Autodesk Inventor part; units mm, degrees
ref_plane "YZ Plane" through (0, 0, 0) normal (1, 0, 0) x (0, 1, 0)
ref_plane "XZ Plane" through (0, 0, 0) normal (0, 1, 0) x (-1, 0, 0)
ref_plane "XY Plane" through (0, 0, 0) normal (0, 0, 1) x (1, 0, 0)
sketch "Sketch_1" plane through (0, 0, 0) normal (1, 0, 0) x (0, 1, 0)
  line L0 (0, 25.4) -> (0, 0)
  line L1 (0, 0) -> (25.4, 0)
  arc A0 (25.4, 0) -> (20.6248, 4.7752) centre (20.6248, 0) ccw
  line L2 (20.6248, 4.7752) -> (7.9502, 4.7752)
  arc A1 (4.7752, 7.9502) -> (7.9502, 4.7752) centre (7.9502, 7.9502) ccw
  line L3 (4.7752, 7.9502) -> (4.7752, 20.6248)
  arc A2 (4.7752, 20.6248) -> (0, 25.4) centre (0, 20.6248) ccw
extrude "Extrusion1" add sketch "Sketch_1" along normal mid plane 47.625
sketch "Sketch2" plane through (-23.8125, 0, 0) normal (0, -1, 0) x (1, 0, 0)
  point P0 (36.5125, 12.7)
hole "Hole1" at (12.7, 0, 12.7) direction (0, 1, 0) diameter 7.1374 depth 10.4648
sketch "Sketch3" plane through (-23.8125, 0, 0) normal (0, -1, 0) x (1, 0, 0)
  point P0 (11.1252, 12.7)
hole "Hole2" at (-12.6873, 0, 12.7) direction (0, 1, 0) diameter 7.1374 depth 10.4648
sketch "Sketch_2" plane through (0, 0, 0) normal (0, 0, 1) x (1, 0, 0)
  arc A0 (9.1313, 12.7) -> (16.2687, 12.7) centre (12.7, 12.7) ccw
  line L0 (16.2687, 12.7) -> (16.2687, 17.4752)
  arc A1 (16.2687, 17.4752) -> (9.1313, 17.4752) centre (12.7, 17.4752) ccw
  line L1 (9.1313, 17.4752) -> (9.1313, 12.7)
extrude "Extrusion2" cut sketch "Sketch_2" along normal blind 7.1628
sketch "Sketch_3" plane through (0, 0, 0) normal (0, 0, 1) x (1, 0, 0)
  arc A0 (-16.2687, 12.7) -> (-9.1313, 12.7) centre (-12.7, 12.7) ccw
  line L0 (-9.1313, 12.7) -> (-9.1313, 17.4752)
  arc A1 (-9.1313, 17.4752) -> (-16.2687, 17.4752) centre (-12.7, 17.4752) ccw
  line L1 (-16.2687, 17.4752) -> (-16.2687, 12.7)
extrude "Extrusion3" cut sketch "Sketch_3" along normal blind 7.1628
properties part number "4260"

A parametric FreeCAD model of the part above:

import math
import FreeCAD as App
import Part
import Sketcher
Q = App.Units.Quantity

doc = App.newDocument("Part")
body = doc.addObject("PartDesign::Body", "Body")

sketch1 = body.newObject("Sketcher::SketchObject", "Sketch")
sketch1.AttachmentSupport = (doc.getObject("YZ_Plane"), [""])
sketch1.MapMode = "FlatFace"
sketch1.addGeometry(Part.ArcOfCircle(Part.Circle(App.Vector(0, 20.6, 0), App.Vector(0, 0, 1), 4.8), math.radians(0), math.radians(90)), False)
sketch1.addGeometry(Part.LineSegment(App.Vector(0, 25.4, 0), App.Vector(0, 0, 0)), False)
sketch1.addGeometry(Part.LineSegment(App.Vector(0, 0, 0), App.Vector(25.4, 0, 0)), False)
sketch1.addGeometry(Part.ArcOfCircle(Part.Circle(App.Vector(20.6, 0, 0), App.Vector(0, 0, 1), 4.8), math.radians(0), math.radians(90)), False)
sketch1.addGeometry(Part.LineSegment(App.Vector(20.6, 4.8, 0), App.Vector(8, 4.8, 0)), False)
sketch1.addGeometry(Part.ArcOfCircle(Part.Circle(App.Vector(8, 8, 0), App.Vector(0, 0, 1), 3.2), math.radians(180), math.radians(270)), False)
sketch1.addGeometry(Part.LineSegment(App.Vector(4.8, 8, 0), App.Vector(4.8, 20.6, 0)), False)
sketch1.addConstraint(Sketcher.Constraint("Coincident", 0, 2, 1, 1))
sketch1.addConstraint(Sketcher.Constraint("Coincident", 1, 2, 2, 1))
sketch1.addConstraint(Sketcher.Constraint("Coincident", 2, 2, 3, 1))
sketch1.addConstraint(Sketcher.Constraint("Tangent", 3, 2, 4, 1))
sketch1.addConstraint(Sketcher.Constraint("Tangent", 4, 2, 5, 2))
sketch1.addConstraint(Sketcher.Constraint("Tangent", 5, 1, 6, 1))
sketch1.addConstraint(Sketcher.Constraint("Tangent", 6, 2, 0, 1))
sketch1.addConstraint(Sketcher.Constraint("Vertical", 1))
sketch1.addConstraint(Sketcher.Constraint("Horizontal", 2))
sketch1.addConstraint(Sketcher.Constraint("Horizontal", 4))
sketch1.addConstraint(Sketcher.Constraint("Vertical", 6))
sketch1.addConstraint(Sketcher.Constraint("Coincident", 1, 2, -1, 1))
sketch1.addConstraint(Sketcher.Constraint("Equal", 0, 3))
sketch1.addConstraint(Sketcher.Constraint("PointOnObject", 0, 3, -2))
sketch1.addConstraint(Sketcher.Constraint("PointOnObject", 3, 3, -1))
sketch1.addConstraint(Sketcher.Constraint("Equal", 2, 1))
sketch1.addConstraint(Sketcher.Constraint("DistanceX", 2, 1, 2, 2, Q("1 in")))
sketch1.addConstraint(Sketcher.Constraint("Radius", 0, Q("0.188 in")))
sketch1.addConstraint(Sketcher.Constraint("Radius", 5, Q("0.125 in")))
pad1 = body.newObject("PartDesign::Pad", "Pad")
pad1.Profile = sketch1
pad1.Length = Q("1.875 in")
pad1.Midplane = True

sketch2 = body.newObject("Sketcher::SketchObject", "Sketch001")
sketch2.AttachmentSupport = (doc.getObject("XZ_Plane"), [""])
sketch2.MapMode = "FlatFace"
sketch2.addGeometry(Part.Circle(App.Vector(12.7, 12.7, 0), App.Vector(0, 0, 1), 3.6), False)
sketch2.addConstraint(Sketcher.Constraint("Diameter", 0, Q("0.281 in")))
sketch2.addConstraint(Sketcher.Constraint("DistanceX", -1, 1, 0, 3, Q("0.5 in")))
sketch2.addConstraint(Sketcher.Constraint("DistanceY", -1, 1, 0, 3, Q("0.5 in")))
doc.recompute()
hole = body.newObject("PartDesign::Hole", "Hole")
hole.Profile = sketch2
hole.ThreadType = "None"
hole.Diameter = Q("0.281 in")
hole.DepthType = "Dimension"
hole.Depth = Q("0.412 in")
hole.DrillPoint = "Flat"

sketch3 = body.newObject("Sketcher::SketchObject", "Sketch002")
sketch3.AttachmentSupport = (doc.getObject("XZ_Plane"), [""])
sketch3.MapMode = "FlatFace"
sketch3.addGeometry(Part.Circle(App.Vector(-12.7, 12.7, 0), App.Vector(0, 0, 1), 3.6), False)
sketch3.addConstraint(Sketcher.Constraint("Diameter", 0, Q("0.281 in")))
sketch3.addConstraint(Sketcher.Constraint("DistanceY", -1, 1, 0, 3, Q("0.5 in")))
sketch3.addConstraint(Sketcher.Constraint("DistanceX", 0, 3, -1, 1, Q("0.4995 in")))
doc.recompute()
hole2 = body.newObject("PartDesign::Hole", "Hole001")
hole2.Profile = sketch3
hole2.ThreadType = "None"
hole2.Diameter = Q("0.281 in")
hole2.DepthType = "Dimension"
hole2.Depth = Q("0.412 in")
hole2.DrillPoint = "Flat"

sketch4 = body.newObject("Sketcher::SketchObject", "Sketch003")
sketch4.AttachmentSupport = (doc.getObject("XY_Plane"), [""])
sketch4.MapMode = "FlatFace"
sketch4.addGeometry(Part.LineSegment(App.Vector(9.1, 17.5, 0), App.Vector(9.1, 12.7, 0)), False)
sketch4.addGeometry(Part.ArcOfCircle(Part.Circle(App.Vector(12.7, 12.7, 0), App.Vector(0, 0, 1), 3.6), math.radians(180), math.radians(360)), False)
sketch4.addGeometry(Part.LineSegment(App.Vector(16.3, 12.7, 0), App.Vector(16.3, 17.5, 0)), False)
sketch4.addGeometry(Part.ArcOfCircle(Part.Circle(App.Vector(12.7, 17.5, 0), App.Vector(0, 0, 1), 3.6), math.radians(0), math.radians(180)), False)
sketch4.addConstraint(Sketcher.Constraint("Tangent", 0, 2, 1, 1))
sketch4.addConstraint(Sketcher.Constraint("Tangent", 1, 2, 2, 1))
sketch4.addConstraint(Sketcher.Constraint("Tangent", 2, 2, 3, 1))
sketch4.addConstraint(Sketcher.Constraint("Tangent", 3, 2, 0, 1))
sketch4.addConstraint(Sketcher.Constraint("Vertical", 0))
sketch4.addConstraint(Sketcher.Constraint("Vertical", 2))
sketch4.addConstraint(Sketcher.Constraint("DistanceX", -1, 1, 1, 3, Q("0.5 in")))
sketch4.addConstraint(Sketcher.Constraint("DistanceY", -1, 1, 1, 3, Q("0.5 in")))
sketch4.addConstraint(Sketcher.Constraint("Radius", 1, Q("0.1405 in")))
sketch4.addConstraint(Sketcher.Constraint("DistanceY", 0, 2, 0, 1, Q("0.188 in")))
pocket1 = body.newObject("PartDesign::Pocket", "Pocket")
pocket1.Profile = sketch4
pocket1.Length = Q("0.282 in")
pocket1.Reversed = True

sketch5 = body.newObject("Sketcher::SketchObject", "Sketch004")
sketch5.AttachmentSupport = (doc.getObject("XY_Plane"), [""])
sketch5.MapMode = "FlatFace"
sketch5.addGeometry(Part.LineSegment(App.Vector(-16.3, 17.5, 0), App.Vector(-16.3, 12.7, 0)), False)
sketch5.addGeometry(Part.ArcOfCircle(Part.Circle(App.Vector(-12.7, 12.7, 0), App.Vector(0, 0, 1), 3.6), math.radians(180), math.radians(360)), False)
sketch5.addGeometry(Part.LineSegment(App.Vector(-9.1, 12.7, 0), App.Vector(-9.1, 17.5, 0)), False)
sketch5.addGeometry(Part.ArcOfCircle(Part.Circle(App.Vector(-12.7, 17.5, 0), App.Vector(0, 0, 1), 3.6), math.radians(0), math.radians(180)), False)
sketch5.addConstraint(Sketcher.Constraint("Tangent", 0, 2, 1, 1))
sketch5.addConstraint(Sketcher.Constraint("Tangent", 1, 2, 2, 1))
sketch5.addConstraint(Sketcher.Constraint("Tangent", 2, 2, 3, 1))
sketch5.addConstraint(Sketcher.Constraint("Tangent", 3, 2, 0, 1))
sketch5.addConstraint(Sketcher.Constraint("Vertical", 0))
sketch5.addConstraint(Sketcher.Constraint("Vertical", 2))
sketch5.addConstraint(Sketcher.Constraint("DistanceX", 1, 3, -1, 1, Q("0.5 in")))
sketch5.addConstraint(Sketcher.Constraint("DistanceY", -1, 1, 1, 3, Q("0.5 in")))
sketch5.addConstraint(Sketcher.Constraint("Radius", 1, Q("0.1405 in")))
sketch5.addConstraint(Sketcher.Constraint("DistanceY", 0, 2, 0, 1, Q("0.188 in")))
pocket2 = body.newObject("PartDesign::Pocket", "Pocket001")
pocket2.Profile = sketch5
pocket2.Length = Q("0.282 in")
pocket2.Reversed = True

doc.recompute()
